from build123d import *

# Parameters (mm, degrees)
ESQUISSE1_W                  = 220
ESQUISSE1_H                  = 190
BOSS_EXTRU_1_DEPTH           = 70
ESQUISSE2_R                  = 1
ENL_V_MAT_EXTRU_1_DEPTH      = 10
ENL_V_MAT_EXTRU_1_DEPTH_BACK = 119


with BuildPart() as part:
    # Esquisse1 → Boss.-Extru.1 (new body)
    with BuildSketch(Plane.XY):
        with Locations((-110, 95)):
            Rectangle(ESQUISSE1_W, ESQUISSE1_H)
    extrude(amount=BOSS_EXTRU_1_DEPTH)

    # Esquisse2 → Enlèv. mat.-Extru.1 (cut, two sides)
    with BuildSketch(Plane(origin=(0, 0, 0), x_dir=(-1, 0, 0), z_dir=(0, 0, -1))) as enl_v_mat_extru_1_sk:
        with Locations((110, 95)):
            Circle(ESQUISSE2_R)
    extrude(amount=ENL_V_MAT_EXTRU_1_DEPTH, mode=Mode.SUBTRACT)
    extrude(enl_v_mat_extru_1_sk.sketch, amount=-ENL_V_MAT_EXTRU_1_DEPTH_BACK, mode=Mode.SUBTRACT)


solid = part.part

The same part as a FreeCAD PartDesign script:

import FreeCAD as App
import Part
import Sketcher

doc = App.newDocument("Part")
body = doc.addObject("PartDesign::Body", "Body")

# Sketch on XY plane
sketch1 = body.newObject("Sketcher::SketchObject", "Sketch")
sketch1.AttachmentSupport = (doc.getObject("XY_Plane"), [""])
sketch1.MapMode = "FlatFace"
sketch1.addGeometry(Part.LineSegment(App.Vector(-220, 190, 0), App.Vector(-220, 0, 0)), False)
sketch1.addGeometry(Part.LineSegment(App.Vector(-220, 0, 0), App.Vector(0, 0, 0)), False)
sketch1.addGeometry(Part.LineSegment(App.Vector(0, 0, 0), App.Vector(0, 190, 0)), False)
sketch1.addGeometry(Part.LineSegment(App.Vector(0, 190, 0), App.Vector(-220, 190, 0)), False)
sketch1.addConstraint(Sketcher.Constraint("Coincident", 0, 2, 1, 1))
sketch1.addConstraint(Sketcher.Constraint("Coincident", 1, 2, 2, 1))
sketch1.addConstraint(Sketcher.Constraint("Coincident", 2, 2, 3, 1))
sketch1.addConstraint(Sketcher.Constraint("Coincident", 3, 2, 0, 1))
sketch1.addConstraint(Sketcher.Constraint("Vertical", 0))
sketch1.addConstraint(Sketcher.Constraint("Horizontal", 1))
sketch1.addConstraint(Sketcher.Constraint("Vertical", 2))
sketch1.addConstraint(Sketcher.Constraint("Horizontal", 3))
sketch1.addConstraint(Sketcher.Constraint("Coincident", 1, 2, -1, 1))
sketch1.addConstraint(Sketcher.Constraint("DistanceX", 1, 1, 1, 2, 220.0))
sketch1.addConstraint(Sketcher.Constraint("DistanceY", 0, 2, 0, 1, 190.0))
pad1 = body.newObject("PartDesign::Pad", "Pad")
pad1.Profile = sketch1
pad1.Length = 70

# Sketch on XY plane
sketch2 = body.newObject("Sketcher::SketchObject", "Sketch001")
sketch2.AttachmentSupport = (doc.getObject("XY_Plane"), [""])
sketch2.MapMode = "FlatFace"
sketch2.addGeometry(Part.Circle(App.Vector(-110, 95, 0), App.Vector(0, 0, 1), 1), False)
sketch2.addConstraint(Sketcher.Constraint("Diameter", 0, 2.0))
sketch2.addConstraint(Sketcher.Constraint("DistanceX", 0, 3, -1, 1, 110.0))
sketch2.addConstraint(Sketcher.Constraint("DistanceY", -1, 1, 0, 3, 95.0))
pocket1 = body.newObject("PartDesign::Pocket", "Pocket")
pocket1.Profile = sketch2
pocket1.Type = "ThroughAll"
pocket1.Midplane = True

doc.recompute()
